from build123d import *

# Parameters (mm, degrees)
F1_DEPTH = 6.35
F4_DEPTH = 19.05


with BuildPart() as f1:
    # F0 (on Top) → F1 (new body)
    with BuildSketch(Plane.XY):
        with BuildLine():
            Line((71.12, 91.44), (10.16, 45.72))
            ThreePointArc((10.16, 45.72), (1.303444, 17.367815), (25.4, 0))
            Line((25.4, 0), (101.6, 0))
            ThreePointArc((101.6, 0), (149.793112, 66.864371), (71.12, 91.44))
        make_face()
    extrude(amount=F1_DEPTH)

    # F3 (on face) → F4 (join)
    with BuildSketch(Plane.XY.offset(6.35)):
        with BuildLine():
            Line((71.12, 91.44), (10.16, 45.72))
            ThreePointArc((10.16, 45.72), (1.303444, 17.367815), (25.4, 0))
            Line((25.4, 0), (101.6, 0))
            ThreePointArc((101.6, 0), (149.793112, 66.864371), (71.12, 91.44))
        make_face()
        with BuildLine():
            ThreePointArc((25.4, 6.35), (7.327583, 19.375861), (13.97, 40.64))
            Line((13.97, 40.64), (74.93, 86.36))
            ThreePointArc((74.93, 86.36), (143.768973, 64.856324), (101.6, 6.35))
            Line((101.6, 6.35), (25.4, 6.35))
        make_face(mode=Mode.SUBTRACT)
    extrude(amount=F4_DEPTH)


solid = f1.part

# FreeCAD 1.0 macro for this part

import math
import FreeCAD as App
import Part
import Sketcher
from FreeCAD import Vector
Q = App.Units.Quantity

doc = App.newDocument("Part")
body = doc.addObject("PartDesign::Body", "Body")

# Sketch on XY plane
sketch1 = doc.addObject("Sketcher::SketchObject", "Sketch")
body.addObject(sketch1)
sketch1.AttachmentSupport = (doc.XY_Plane, [""])
sketch1.MapMode = "FlatFace"
sketch1.addGeometry([
    Part.LineSegment(Vector(71, 91, 0), Vector(10, 46, 0)),
    Part.ArcOfCircle(Part.Circle(Vector(25, 25, 0), Vector(0, 0, 1), 25), math.radians(127), math.radians(270)),
    Part.LineSegment(Vector(25, 0, 0), Vector(102, 0, 0)),
    Part.ArcOfCircle(Part.Circle(Vector(102, 51, 0), Vector(0, 0, 1), 51), math.radians(-90), math.radians(127)),
], False)
sketch1.addConstraint([
    Sketcher.Constraint("Tangent", 0, 2, 1, 1),
    Sketcher.Constraint("Tangent", 1, 2, 2, 1),
    Sketcher.Constraint("Tangent", 2, 2, 3, 1),
    Sketcher.Constraint("Tangent", 3, 2, 0, 1),
    Sketcher.Constraint("Horizontal", 2),
    Sketcher.Constraint("PointOnObject", 1, 2, -1),
    Sketcher.Constraint("Radius", 1, Q("1 in")),
    Sketcher.Constraint("Radius", 3, Q("2 in")),
    Sketcher.Constraint("DistanceX", 2, 1, 2, 2, Q("3 in")),
    Sketcher.Constraint("DistanceX", -1, 1, 1, 3, Q("1 in")),
])
pad1 = doc.addObject("PartDesign::Pad", "Pad")
body.addObject(pad1)
pad1.Profile = sketch1
pad1.Length = Q("0.25 in")

# Sketch on XY plane
sketch2 = doc.addObject("Sketcher::SketchObject", "Sketch001")
body.addObject(sketch2)
sketch2.AttachmentSupport = (doc.XY_Plane, [""])
sketch2.MapMode = "FlatFace"
sketch2.AttachmentOffset = App.Placement(Vector(0, 0, 0.25 * 25.4), App.Rotation())
sketch2.addGeometry([
    Part.LineSegment(Vector(71, 91, 0), Vector(10, 46, 0)),  # 0
    Part.ArcOfCircle(Part.Circle(Vector(25, 25, 0), Vector(0, 0, 1), 25), math.radians(127), math.radians(270)),  # 1
    Part.LineSegment(Vector(25, 0, 0), Vector(102, 0, 0)),  # 2
    Part.ArcOfCircle(Part.Circle(Vector(102, 51, 0), Vector(0, 0, 1), 51), math.radians(-90), math.radians(127)),  # 3
    Part.LineSegment(Vector(102, 6, 0), Vector(25, 6, 0)),  # 4
    Part.ArcOfCircle(Part.Circle(Vector(25, 25, 0), Vector(0, 0, 1), 19), math.radians(127), math.radians(270)),  # 5
    Part.LineSegment(Vector(14, 41, 0), Vector(75, 86, 0)),  # 6
    Part.ArcOfCircle(Part.Circle(Vector(102, 51, 0), Vector(0, 0, 1), 44), math.radians(-90), math.radians(127)),  # 7
], False)
sketch2.addConstraint([
    Sketcher.Constraint("Tangent", 0, 2, 1, 1),
    Sketcher.Constraint("Tangent", 1, 2, 2, 1),
    Sketcher.Constraint("Tangent", 2, 2, 3, 1),
    Sketcher.Constraint("Tangent", 3, 2, 0, 1),
    Sketcher.Constraint("Tangent", 4, 2, 5, 2),
    Sketcher.Constraint("Tangent", 5, 1, 6, 1),
    Sketcher.Constraint("Tangent", 6, 2, 7, 2),
    Sketcher.Constraint("Tangent", 7, 1, 4, 1),
    Sketcher.Constraint("Horizontal", 2),
    Sketcher.Constraint("Horizontal", 4),
    Sketcher.Constraint("Coincident", 5, 3, 1, 3),
    Sketcher.Constraint("Coincident", 7, 3, 3, 3),
    Sketcher.Constraint("PointOnObject", 1, 2, -1),
    Sketcher.Constraint("Radius", 1, Q("1 in")),
    Sketcher.Constraint("Radius", 3, Q("2 in")),
    Sketcher.Constraint("DistanceX", 2, 1, 2, 2, Q("3 in")),
    Sketcher.Constraint("Radius", 5, Q("0.75 in")),
    Sketcher.Constraint("DistanceX", -1, 1, 1, 3, Q("1 in")),
])
pad2 = doc.addObject("PartDesign::Pad", "Pad001")
body.addObject(pad2)
pad2.Profile = sketch2
pad2.Length = Q("0.75 in")

doc.recompute()
